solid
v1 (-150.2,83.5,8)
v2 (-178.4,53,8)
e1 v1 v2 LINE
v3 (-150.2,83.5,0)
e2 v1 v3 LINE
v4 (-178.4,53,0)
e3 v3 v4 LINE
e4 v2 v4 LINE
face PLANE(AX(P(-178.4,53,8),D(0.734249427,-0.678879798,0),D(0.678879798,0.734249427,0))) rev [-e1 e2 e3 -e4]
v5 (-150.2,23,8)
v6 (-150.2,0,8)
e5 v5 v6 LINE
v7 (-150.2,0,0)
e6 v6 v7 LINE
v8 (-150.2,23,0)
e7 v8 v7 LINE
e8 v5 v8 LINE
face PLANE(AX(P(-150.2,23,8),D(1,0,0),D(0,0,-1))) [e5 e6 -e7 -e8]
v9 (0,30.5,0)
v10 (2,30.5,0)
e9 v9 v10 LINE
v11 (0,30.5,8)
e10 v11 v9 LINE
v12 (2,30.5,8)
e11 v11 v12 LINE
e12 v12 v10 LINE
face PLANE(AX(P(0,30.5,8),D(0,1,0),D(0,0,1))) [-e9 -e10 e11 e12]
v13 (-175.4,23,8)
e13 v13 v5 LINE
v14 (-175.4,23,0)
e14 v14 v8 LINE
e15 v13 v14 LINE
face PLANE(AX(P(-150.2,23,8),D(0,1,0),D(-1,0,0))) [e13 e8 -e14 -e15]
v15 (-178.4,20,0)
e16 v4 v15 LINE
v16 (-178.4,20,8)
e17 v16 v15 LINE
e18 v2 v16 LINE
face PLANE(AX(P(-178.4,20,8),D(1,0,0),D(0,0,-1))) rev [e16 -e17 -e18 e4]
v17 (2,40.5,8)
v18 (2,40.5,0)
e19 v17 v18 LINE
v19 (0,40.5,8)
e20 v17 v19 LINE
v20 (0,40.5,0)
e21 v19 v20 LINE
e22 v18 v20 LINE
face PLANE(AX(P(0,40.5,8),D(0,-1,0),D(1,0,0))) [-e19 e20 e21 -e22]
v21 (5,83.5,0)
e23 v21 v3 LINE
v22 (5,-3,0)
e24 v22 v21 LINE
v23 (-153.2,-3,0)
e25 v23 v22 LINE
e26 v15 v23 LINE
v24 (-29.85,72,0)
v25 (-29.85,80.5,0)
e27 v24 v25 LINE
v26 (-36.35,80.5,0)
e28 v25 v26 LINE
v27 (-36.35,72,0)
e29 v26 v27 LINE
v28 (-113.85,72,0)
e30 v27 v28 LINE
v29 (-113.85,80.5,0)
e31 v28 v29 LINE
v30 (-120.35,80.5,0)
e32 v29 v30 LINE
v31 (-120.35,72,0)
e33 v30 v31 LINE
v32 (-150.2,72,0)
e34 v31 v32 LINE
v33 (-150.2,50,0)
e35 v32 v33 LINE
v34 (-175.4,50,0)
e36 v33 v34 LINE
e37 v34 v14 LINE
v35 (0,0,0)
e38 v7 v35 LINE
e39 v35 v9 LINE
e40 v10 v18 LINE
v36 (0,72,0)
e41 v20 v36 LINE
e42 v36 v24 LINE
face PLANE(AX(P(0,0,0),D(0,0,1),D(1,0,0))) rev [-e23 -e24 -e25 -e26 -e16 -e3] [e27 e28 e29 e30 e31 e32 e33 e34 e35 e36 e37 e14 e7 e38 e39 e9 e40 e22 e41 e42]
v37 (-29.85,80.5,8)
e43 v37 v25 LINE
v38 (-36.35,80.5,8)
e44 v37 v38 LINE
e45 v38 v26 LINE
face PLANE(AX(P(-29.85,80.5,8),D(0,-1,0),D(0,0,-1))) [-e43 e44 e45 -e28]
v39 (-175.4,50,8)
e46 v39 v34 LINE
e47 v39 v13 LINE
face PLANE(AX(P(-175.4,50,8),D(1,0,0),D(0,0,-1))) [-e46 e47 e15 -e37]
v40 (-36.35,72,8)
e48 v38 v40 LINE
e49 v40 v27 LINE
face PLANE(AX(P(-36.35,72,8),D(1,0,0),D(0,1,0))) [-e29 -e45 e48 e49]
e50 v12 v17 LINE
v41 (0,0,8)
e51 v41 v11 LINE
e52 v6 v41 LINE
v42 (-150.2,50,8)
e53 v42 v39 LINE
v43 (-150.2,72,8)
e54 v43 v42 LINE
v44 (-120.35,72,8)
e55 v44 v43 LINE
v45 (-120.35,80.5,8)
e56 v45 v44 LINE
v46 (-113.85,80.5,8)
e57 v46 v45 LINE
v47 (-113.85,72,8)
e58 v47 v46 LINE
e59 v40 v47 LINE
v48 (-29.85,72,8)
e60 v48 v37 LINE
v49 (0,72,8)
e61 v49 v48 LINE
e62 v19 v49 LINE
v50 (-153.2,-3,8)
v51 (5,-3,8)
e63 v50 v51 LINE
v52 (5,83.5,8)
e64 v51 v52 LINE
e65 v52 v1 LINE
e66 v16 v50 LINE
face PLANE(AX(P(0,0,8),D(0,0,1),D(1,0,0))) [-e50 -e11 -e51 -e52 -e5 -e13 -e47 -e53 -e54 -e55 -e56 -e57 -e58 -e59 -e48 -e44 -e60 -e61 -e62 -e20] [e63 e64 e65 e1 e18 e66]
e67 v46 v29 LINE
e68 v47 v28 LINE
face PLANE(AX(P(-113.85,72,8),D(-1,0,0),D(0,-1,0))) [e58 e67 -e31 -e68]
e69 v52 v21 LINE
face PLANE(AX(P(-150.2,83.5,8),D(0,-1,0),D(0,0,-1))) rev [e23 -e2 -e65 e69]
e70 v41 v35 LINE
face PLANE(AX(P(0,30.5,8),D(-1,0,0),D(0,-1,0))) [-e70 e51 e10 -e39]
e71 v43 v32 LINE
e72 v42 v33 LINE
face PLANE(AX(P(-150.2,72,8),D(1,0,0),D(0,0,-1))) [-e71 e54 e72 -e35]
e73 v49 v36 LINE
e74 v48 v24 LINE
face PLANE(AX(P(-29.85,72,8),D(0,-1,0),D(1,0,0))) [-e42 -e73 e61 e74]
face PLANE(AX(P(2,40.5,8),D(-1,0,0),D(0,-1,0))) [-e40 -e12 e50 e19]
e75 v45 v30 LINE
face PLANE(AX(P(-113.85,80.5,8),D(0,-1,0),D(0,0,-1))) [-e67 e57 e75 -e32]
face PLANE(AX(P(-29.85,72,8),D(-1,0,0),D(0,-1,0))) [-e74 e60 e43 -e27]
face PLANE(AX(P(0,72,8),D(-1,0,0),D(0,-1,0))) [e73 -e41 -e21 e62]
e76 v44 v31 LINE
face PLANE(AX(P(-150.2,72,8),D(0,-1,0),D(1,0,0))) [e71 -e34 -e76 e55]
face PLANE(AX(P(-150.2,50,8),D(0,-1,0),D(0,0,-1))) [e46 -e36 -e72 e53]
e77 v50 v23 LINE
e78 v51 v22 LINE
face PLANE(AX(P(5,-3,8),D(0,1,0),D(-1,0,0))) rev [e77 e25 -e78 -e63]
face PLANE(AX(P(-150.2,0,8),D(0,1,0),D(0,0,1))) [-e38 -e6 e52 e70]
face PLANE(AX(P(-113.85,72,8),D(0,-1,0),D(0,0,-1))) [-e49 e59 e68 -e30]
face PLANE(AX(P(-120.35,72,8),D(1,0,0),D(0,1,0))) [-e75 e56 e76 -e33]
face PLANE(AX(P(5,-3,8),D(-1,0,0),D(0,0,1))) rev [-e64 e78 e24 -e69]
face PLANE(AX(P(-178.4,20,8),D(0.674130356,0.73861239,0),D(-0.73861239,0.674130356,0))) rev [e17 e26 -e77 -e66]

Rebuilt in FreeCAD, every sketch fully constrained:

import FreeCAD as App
import Part
import Sketcher
from FreeCAD import Vector

doc = App.newDocument("Part")
body = doc.addObject("PartDesign::Body", "Body")

sketch1 = body.newObject("Sketcher::SketchObject", "Sketch")
sketch1.AttachmentSupport = (doc.getObject("XY_Plane"), [""])
sketch1.MapMode = "FlatFace"
sketch1.addGeometry([
    Part.LineSegment(Vector(-150.2, 83.5, 0), Vector(-178.4, 53, 0)),
    Part.LineSegment(Vector(-178.4, 53, 0), Vector(-178.4, 20, 0)),
    Part.LineSegment(Vector(-178.4, 20, 0), Vector(-153.2, -3, 0)),
    Part.LineSegment(Vector(-153.2, -3, 0), Vector(5, -3, 0)),
    Part.LineSegment(Vector(5, -3, 0), Vector(5, 83.5, 0)),
    Part.LineSegment(Vector(5, 83.5, 0), Vector(-150.2, 83.5, 0)),
    Part.LineSegment(Vector(-150.2, 72, 0), Vector(-120.3, 72, 0)),
    Part.LineSegment(Vector(-120.3, 72, 0), Vector(-120.3, 80.5, 0)),
    Part.LineSegment(Vector(-120.3, 80.5, 0), Vector(-113.8, 80.5, 0)),
    Part.LineSegment(Vector(-113.8, 80.5, 0), Vector(-113.8, 72, 0)),
    Part.LineSegment(Vector(-113.8, 72, 0), Vector(-36.4, 72, 0)),
    Part.LineSegment(Vector(-36.4, 72, 0), Vector(-36.4, 80.5, 0)),
    Part.LineSegment(Vector(-36.4, 80.5, 0), Vector(-29.9, 80.5, 0)),
    Part.LineSegment(Vector(-29.9, 80.5, 0), Vector(-29.9, 72, 0)),
    Part.LineSegment(Vector(-29.9, 72, 0), Vector(0, 72, 0)),
    Part.LineSegment(Vector(0, 72, 0), Vector(0, 40.5, 0)),
    Part.LineSegment(Vector(0, 40.5, 0), Vector(2, 40.5, 0)),
    Part.LineSegment(Vector(2, 40.5, 0), Vector(2, 30.5, 0)),
    Part.LineSegment(Vector(2, 30.5, 0), Vector(0, 30.5, 0)),
    Part.LineSegment(Vector(0, 30.5, 0), Vector(0, 0, 0)),
    Part.LineSegment(Vector(0, 0, 0), Vector(-150.2, 0, 0)),
    Part.LineSegment(Vector(-150.2, 0, 0), Vector(-150.2, 23, 0)),
    Part.LineSegment(Vector(-150.2, 23, 0), Vector(-175.4, 23, 0)),
    Part.LineSegment(Vector(-175.4, 23, 0), Vector(-175.4, 50, 0)),
    Part.LineSegment(Vector(-175.4, 50, 0), Vector(-150.2, 50, 0)),
    Part.LineSegment(Vector(-150.2, 50, 0), Vector(-150.2, 72, 0)),
], False)
sketch1.addConstraint([
    Sketcher.Constraint("Coincident", 0, 2, 1, 1),
    Sketcher.Constraint("Coincident", 1, 2, 2, 1),
    Sketcher.Constraint("Coincident", 2, 2, 3, 1),
    Sketcher.Constraint("Coincident", 3, 2, 4, 1),
    Sketcher.Constraint("Coincident", 4, 2, 5, 1),
    Sketcher.Constraint("Coincident", 5, 2, 0, 1),
    Sketcher.Constraint("Coincident", 6, 2, 7, 1),
    Sketcher.Constraint("Coincident", 7, 2, 8, 1),
    Sketcher.Constraint("Coincident", 8, 2, 9, 1),
    Sketcher.Constraint("Coincident", 9, 2, 10, 1),
    Sketcher.Constraint("Coincident", 10, 2, 11, 1),
    Sketcher.Constraint("Coincident", 11, 2, 12, 1),
    Sketcher.Constraint("Coincident", 12, 2, 13, 1),
    Sketcher.Constraint("Coincident", 13, 2, 14, 1),
    Sketcher.Constraint("Coincident", 14, 2, 15, 1),
    Sketcher.Constraint("Coincident", 15, 2, 16, 1),
    Sketcher.Constraint("Coincident", 16, 2, 17, 1),
    Sketcher.Constraint("Coincident", 17, 2, 18, 1),
    Sketcher.Constraint("Coincident", 18, 2, 19, 1),
    Sketcher.Constraint("Coincident", 19, 2, 20, 1),
    Sketcher.Constraint("Coincident", 20, 2, 21, 1),
    Sketcher.Constraint("Coincident", 21, 2, 22, 1),
    Sketcher.Constraint("Coincident", 22, 2, 23, 1),
    Sketcher.Constraint("Coincident", 23, 2, 24, 1),
    Sketcher.Constraint("Coincident", 24, 2, 25, 1),
    Sketcher.Constraint("Coincident", 25, 2, 6, 1),
    Sketcher.Constraint("Vertical", 1),
    Sketcher.Constraint("Horizontal", 3),
    Sketcher.Constraint("Vertical", 4),
    Sketcher.Constraint("Horizontal", 5),
    Sketcher.Constraint("Horizontal", 6),
    Sketcher.Constraint("Vertical", 7),
    Sketcher.Constraint("Horizontal", 8),
    Sketcher.Constraint("Vertical", 9),
    Sketcher.Constraint("Horizontal", 10),
    Sketcher.Constraint("Vertical", 11),
    Sketcher.Constraint("Horizontal", 12),
    Sketcher.Constraint("Vertical", 13),
    Sketcher.Constraint("Horizontal", 14),
    Sketcher.Constraint("Vertical", 15),
    Sketcher.Constraint("Horizontal", 16),
    Sketcher.Constraint("Vertical", 17),
    Sketcher.Constraint("Horizontal", 18),
    Sketcher.Constraint("Vertical", 19),
    Sketcher.Constraint("Horizontal", 20),
    Sketcher.Constraint("Vertical", 21),
    Sketcher.Constraint("Horizontal", 22),
    Sketcher.Constraint("Vertical", 23),
    Sketcher.Constraint("Horizontal", 24),
    Sketcher.Constraint("Vertical", 25),
    Sketcher.Constraint("Coincident", 19, 2, -1, 1),
    Sketcher.Constraint("PointOnObject", 14, 2, -2),
    Sketcher.Constraint("Horizontal", 6, 2, 9, 2),
    Sketcher.Constraint("Horizontal", 8, 2, 11, 2),
    Sketcher.Constraint("Horizontal", 10, 2, 13, 2),
    Sketcher.Constraint("Vertical", 5, 2, 20, 2),
    Sketcher.Constraint("Vertical", 21, 2, 24, 2),
    Sketcher.Constraint("Equal", 8, 12),
    Sketcher.Constraint("Equal", 6, 14),
    Sketcher.Constraint("DistanceX", 16, 1, 16, 2, 2.0),
    Sketcher.Constraint("DistanceY", 1, 2, 1, 1, 33.0),
    Sketcher.Constraint("DistanceY", 17, 2, 17, 1, 10.0),
    Sketcher.Constraint("DistanceY", 21, 1, 21, 2, 23.0),
    Sketcher.Constraint("DistanceY", 23, 1, 23, 2, 27.0),
    Sketcher.Constraint("DistanceY", 25, 1, 25, 2, 22.0),
    Sketcher.Constraint("DistanceX", 3, 1, 3, 2, 158.2),
    Sketcher.Constraint("DistanceX", 5, 2, 5, 1, 155.2),
    Sketcher.Constraint("DistanceX", 8, 1, 8, 2, 6.5),
    Sketcher.Constraint("DistanceX", 10, 1, 10, 2, 77.5),
    Sketcher.Constraint("DistanceX", 20, 2, 20, 1, 150.2),
    Sketcher.Constraint("DistanceX", 22, 2, 22, 1, 25.2),
    Sketcher.Constraint("DistanceY", 4, 1, 4, 2, 86.5),
    Sketcher.Constraint("DistanceY", 7, 1, 7, 2, 8.5),
    Sketcher.Constraint("DistanceY", 15, 2, 15, 1, 31.5),
    Sketcher.Constraint("DistanceY", -1, 1, 0, 2, 53.0),
    Sketcher.Constraint("DistanceY", 2, 2, -1, 1, 3.0),
    Sketcher.Constraint("DistanceX", 1, 2, 22, 2, 3.0),
])
pad1 = body.newObject("PartDesign::Pad", "Pad")
pad1.Profile = sketch1
pad1.Length = 8

doc.recompute()
